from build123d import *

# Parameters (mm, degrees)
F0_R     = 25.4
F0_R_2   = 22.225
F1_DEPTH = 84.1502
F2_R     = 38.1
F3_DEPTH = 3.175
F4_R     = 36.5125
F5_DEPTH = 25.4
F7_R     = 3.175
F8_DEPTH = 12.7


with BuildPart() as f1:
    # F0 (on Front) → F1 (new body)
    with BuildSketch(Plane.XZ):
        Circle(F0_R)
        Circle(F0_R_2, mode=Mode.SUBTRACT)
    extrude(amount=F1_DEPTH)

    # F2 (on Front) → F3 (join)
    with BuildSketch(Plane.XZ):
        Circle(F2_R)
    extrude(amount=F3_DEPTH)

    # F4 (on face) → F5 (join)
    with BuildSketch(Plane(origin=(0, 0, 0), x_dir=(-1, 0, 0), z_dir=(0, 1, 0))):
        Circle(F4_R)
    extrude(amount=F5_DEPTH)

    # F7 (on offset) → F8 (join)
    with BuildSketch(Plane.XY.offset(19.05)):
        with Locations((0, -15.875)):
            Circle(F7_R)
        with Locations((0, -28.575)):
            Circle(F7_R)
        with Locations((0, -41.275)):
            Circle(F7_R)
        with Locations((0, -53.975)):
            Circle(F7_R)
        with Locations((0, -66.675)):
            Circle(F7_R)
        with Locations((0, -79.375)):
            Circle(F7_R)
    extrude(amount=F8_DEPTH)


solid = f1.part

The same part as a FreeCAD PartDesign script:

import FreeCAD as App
import Part
import Sketcher

V = App.Vector
Q = App.Units.Quantity

doc = App.newDocument("Part")
body = doc.addObject("PartDesign::Body", "Body")

sketch1 = doc.addObject("Sketcher::SketchObject", "Sketch")
body.addObject(sketch1)
sketch1.AttachmentSupport = (doc.XZ_Plane, [""])
sketch1.MapMode = "FlatFace"
sketch1.addGeometry([
    Part.Circle(V(0, 0, 0), V(0, 0, 1), 25.4),
    Part.Circle(V(0, 0, 0), V(0, 0, 1), 22.225),
], False)
sketch1.addConstraint([
    Sketcher.Constraint("Coincident", 0, 3, -1, 1),
    Sketcher.Constraint("Coincident", 1, 3, -1, 1),
    Sketcher.Constraint("Diameter", 0, Q("2 in")),
    Sketcher.Constraint("Diameter", 1, Q("1.75 in")),
])
pad1 = doc.addObject("PartDesign::Pad", "Pad")
body.addObject(pad1)
pad1.Profile = sketch1
pad1.Length = Q("3.313 in")

sketch2 = doc.addObject("Sketcher::SketchObject", "Sketch001")
body.addObject(sketch2)
sketch2.AttachmentSupport = (doc.XZ_Plane, [""])
sketch2.MapMode = "FlatFace"
sketch2.addGeometry(Part.Circle(V(0, 0, 0), V(0, 0, 1), 38.1), False)
sketch2.addConstraint([
    Sketcher.Constraint("Coincident", 0, 3, -1, 1),
    Sketcher.Constraint("Diameter", 0, Q("3 in")),
])
pad2 = doc.addObject("PartDesign::Pad", "Pad001")
body.addObject(pad2)
pad2.Profile = sketch2
pad2.Length = Q("0.125 in")

sketch3 = doc.addObject("Sketcher::SketchObject", "Sketch002")
body.addObject(sketch3)
sketch3.AttachmentSupport = (doc.XZ_Plane, [""])
sketch3.MapMode = "FlatFace"
sketch3.addGeometry(Part.Circle(V(0, 0, 0), V(0, 0, 1), 36.5125), False)
sketch3.addConstraint([
    Sketcher.Constraint("Coincident", 0, 3, -1, 1),
    Sketcher.Constraint("Diameter", 0, Q("2.875 in")),
])
pad3 = doc.addObject("PartDesign::Pad", "Pad002")
body.addObject(pad3)
pad3.Profile = sketch3
pad3.Length = Q("1 in")
pad3.Reversed = True

sketch4 = doc.addObject("Sketcher::SketchObject", "Sketch003")
body.addObject(sketch4)
sketch4.AttachmentSupport = (doc.XY_Plane, [""])
sketch4.MapMode = "FlatFace"
sketch4.AttachmentOffset = App.Placement(V(0, 0, 0.75 * 25.4), App.Rotation())
sketch4.addGeometry([
    Part.Circle(V(0, -15.875, 0), V(0, 0, 1), 3.175),
    Part.Circle(V(0, -28.575, 0), V(0, 0, 1), 3.175),
    Part.Circle(V(0, -41.275, 0), V(0, 0, 1), 3.175),
    Part.Circle(V(0, -53.975, 0), V(0, 0, 1), 3.175),
    Part.Circle(V(0, -66.675, 0), V(0, 0, 1), 3.175),
    Part.Circle(V(0, -79.375, 0), V(0, 0, 1), 3.175),
], False)
sketch4.addConstraint([
    Sketcher.Constraint("Equal", 0, 1),
    Sketcher.Constraint("Equal", 1, 2),
    Sketcher.Constraint("Equal", 2, 3),
    Sketcher.Constraint("Equal", 3, 4),
    Sketcher.Constraint("Equal", 4, 5),
    Sketcher.Constraint("PointOnObject", 0, 3, -2),
    Sketcher.Constraint("PointOnObject", 1, 3, -2),
    Sketcher.Constraint("PointOnObject", 2, 3, -2),
    Sketcher.Constraint("PointOnObject", 3, 3, -2),
    Sketcher.Constraint("PointOnObject", 4, 3, -2),
    Sketcher.Constraint("PointOnObject", 5, 3, -2),
    Sketcher.Constraint("Diameter", 0, Q("0.25 in")),
    Sketcher.Constraint("DistanceY", 2, 3, 0, 3, Q("1 in")),
    Sketcher.Constraint("DistanceY", 3, 3, 1, 3, Q("1 in")),
    Sketcher.Constraint("DistanceY", 4, 3, 2, 3, Q("1 in")),
    Sketcher.Constraint("DistanceY", 5, 3, 3, 3, Q("1 in")),
    Sketcher.Constraint("DistanceY", 1, 3, 0, 3, Q("0.5 in")),
    Sketcher.Constraint("DistanceY", 0, 3, -1, 1, Q("0.625 in")),
])
pad4 = doc.addObject("PartDesign::Pad", "Pad003")
body.addObject(pad4)
pad4.Profile = sketch4
pad4.Length = Q("0.5 in")

doc.recompute()
